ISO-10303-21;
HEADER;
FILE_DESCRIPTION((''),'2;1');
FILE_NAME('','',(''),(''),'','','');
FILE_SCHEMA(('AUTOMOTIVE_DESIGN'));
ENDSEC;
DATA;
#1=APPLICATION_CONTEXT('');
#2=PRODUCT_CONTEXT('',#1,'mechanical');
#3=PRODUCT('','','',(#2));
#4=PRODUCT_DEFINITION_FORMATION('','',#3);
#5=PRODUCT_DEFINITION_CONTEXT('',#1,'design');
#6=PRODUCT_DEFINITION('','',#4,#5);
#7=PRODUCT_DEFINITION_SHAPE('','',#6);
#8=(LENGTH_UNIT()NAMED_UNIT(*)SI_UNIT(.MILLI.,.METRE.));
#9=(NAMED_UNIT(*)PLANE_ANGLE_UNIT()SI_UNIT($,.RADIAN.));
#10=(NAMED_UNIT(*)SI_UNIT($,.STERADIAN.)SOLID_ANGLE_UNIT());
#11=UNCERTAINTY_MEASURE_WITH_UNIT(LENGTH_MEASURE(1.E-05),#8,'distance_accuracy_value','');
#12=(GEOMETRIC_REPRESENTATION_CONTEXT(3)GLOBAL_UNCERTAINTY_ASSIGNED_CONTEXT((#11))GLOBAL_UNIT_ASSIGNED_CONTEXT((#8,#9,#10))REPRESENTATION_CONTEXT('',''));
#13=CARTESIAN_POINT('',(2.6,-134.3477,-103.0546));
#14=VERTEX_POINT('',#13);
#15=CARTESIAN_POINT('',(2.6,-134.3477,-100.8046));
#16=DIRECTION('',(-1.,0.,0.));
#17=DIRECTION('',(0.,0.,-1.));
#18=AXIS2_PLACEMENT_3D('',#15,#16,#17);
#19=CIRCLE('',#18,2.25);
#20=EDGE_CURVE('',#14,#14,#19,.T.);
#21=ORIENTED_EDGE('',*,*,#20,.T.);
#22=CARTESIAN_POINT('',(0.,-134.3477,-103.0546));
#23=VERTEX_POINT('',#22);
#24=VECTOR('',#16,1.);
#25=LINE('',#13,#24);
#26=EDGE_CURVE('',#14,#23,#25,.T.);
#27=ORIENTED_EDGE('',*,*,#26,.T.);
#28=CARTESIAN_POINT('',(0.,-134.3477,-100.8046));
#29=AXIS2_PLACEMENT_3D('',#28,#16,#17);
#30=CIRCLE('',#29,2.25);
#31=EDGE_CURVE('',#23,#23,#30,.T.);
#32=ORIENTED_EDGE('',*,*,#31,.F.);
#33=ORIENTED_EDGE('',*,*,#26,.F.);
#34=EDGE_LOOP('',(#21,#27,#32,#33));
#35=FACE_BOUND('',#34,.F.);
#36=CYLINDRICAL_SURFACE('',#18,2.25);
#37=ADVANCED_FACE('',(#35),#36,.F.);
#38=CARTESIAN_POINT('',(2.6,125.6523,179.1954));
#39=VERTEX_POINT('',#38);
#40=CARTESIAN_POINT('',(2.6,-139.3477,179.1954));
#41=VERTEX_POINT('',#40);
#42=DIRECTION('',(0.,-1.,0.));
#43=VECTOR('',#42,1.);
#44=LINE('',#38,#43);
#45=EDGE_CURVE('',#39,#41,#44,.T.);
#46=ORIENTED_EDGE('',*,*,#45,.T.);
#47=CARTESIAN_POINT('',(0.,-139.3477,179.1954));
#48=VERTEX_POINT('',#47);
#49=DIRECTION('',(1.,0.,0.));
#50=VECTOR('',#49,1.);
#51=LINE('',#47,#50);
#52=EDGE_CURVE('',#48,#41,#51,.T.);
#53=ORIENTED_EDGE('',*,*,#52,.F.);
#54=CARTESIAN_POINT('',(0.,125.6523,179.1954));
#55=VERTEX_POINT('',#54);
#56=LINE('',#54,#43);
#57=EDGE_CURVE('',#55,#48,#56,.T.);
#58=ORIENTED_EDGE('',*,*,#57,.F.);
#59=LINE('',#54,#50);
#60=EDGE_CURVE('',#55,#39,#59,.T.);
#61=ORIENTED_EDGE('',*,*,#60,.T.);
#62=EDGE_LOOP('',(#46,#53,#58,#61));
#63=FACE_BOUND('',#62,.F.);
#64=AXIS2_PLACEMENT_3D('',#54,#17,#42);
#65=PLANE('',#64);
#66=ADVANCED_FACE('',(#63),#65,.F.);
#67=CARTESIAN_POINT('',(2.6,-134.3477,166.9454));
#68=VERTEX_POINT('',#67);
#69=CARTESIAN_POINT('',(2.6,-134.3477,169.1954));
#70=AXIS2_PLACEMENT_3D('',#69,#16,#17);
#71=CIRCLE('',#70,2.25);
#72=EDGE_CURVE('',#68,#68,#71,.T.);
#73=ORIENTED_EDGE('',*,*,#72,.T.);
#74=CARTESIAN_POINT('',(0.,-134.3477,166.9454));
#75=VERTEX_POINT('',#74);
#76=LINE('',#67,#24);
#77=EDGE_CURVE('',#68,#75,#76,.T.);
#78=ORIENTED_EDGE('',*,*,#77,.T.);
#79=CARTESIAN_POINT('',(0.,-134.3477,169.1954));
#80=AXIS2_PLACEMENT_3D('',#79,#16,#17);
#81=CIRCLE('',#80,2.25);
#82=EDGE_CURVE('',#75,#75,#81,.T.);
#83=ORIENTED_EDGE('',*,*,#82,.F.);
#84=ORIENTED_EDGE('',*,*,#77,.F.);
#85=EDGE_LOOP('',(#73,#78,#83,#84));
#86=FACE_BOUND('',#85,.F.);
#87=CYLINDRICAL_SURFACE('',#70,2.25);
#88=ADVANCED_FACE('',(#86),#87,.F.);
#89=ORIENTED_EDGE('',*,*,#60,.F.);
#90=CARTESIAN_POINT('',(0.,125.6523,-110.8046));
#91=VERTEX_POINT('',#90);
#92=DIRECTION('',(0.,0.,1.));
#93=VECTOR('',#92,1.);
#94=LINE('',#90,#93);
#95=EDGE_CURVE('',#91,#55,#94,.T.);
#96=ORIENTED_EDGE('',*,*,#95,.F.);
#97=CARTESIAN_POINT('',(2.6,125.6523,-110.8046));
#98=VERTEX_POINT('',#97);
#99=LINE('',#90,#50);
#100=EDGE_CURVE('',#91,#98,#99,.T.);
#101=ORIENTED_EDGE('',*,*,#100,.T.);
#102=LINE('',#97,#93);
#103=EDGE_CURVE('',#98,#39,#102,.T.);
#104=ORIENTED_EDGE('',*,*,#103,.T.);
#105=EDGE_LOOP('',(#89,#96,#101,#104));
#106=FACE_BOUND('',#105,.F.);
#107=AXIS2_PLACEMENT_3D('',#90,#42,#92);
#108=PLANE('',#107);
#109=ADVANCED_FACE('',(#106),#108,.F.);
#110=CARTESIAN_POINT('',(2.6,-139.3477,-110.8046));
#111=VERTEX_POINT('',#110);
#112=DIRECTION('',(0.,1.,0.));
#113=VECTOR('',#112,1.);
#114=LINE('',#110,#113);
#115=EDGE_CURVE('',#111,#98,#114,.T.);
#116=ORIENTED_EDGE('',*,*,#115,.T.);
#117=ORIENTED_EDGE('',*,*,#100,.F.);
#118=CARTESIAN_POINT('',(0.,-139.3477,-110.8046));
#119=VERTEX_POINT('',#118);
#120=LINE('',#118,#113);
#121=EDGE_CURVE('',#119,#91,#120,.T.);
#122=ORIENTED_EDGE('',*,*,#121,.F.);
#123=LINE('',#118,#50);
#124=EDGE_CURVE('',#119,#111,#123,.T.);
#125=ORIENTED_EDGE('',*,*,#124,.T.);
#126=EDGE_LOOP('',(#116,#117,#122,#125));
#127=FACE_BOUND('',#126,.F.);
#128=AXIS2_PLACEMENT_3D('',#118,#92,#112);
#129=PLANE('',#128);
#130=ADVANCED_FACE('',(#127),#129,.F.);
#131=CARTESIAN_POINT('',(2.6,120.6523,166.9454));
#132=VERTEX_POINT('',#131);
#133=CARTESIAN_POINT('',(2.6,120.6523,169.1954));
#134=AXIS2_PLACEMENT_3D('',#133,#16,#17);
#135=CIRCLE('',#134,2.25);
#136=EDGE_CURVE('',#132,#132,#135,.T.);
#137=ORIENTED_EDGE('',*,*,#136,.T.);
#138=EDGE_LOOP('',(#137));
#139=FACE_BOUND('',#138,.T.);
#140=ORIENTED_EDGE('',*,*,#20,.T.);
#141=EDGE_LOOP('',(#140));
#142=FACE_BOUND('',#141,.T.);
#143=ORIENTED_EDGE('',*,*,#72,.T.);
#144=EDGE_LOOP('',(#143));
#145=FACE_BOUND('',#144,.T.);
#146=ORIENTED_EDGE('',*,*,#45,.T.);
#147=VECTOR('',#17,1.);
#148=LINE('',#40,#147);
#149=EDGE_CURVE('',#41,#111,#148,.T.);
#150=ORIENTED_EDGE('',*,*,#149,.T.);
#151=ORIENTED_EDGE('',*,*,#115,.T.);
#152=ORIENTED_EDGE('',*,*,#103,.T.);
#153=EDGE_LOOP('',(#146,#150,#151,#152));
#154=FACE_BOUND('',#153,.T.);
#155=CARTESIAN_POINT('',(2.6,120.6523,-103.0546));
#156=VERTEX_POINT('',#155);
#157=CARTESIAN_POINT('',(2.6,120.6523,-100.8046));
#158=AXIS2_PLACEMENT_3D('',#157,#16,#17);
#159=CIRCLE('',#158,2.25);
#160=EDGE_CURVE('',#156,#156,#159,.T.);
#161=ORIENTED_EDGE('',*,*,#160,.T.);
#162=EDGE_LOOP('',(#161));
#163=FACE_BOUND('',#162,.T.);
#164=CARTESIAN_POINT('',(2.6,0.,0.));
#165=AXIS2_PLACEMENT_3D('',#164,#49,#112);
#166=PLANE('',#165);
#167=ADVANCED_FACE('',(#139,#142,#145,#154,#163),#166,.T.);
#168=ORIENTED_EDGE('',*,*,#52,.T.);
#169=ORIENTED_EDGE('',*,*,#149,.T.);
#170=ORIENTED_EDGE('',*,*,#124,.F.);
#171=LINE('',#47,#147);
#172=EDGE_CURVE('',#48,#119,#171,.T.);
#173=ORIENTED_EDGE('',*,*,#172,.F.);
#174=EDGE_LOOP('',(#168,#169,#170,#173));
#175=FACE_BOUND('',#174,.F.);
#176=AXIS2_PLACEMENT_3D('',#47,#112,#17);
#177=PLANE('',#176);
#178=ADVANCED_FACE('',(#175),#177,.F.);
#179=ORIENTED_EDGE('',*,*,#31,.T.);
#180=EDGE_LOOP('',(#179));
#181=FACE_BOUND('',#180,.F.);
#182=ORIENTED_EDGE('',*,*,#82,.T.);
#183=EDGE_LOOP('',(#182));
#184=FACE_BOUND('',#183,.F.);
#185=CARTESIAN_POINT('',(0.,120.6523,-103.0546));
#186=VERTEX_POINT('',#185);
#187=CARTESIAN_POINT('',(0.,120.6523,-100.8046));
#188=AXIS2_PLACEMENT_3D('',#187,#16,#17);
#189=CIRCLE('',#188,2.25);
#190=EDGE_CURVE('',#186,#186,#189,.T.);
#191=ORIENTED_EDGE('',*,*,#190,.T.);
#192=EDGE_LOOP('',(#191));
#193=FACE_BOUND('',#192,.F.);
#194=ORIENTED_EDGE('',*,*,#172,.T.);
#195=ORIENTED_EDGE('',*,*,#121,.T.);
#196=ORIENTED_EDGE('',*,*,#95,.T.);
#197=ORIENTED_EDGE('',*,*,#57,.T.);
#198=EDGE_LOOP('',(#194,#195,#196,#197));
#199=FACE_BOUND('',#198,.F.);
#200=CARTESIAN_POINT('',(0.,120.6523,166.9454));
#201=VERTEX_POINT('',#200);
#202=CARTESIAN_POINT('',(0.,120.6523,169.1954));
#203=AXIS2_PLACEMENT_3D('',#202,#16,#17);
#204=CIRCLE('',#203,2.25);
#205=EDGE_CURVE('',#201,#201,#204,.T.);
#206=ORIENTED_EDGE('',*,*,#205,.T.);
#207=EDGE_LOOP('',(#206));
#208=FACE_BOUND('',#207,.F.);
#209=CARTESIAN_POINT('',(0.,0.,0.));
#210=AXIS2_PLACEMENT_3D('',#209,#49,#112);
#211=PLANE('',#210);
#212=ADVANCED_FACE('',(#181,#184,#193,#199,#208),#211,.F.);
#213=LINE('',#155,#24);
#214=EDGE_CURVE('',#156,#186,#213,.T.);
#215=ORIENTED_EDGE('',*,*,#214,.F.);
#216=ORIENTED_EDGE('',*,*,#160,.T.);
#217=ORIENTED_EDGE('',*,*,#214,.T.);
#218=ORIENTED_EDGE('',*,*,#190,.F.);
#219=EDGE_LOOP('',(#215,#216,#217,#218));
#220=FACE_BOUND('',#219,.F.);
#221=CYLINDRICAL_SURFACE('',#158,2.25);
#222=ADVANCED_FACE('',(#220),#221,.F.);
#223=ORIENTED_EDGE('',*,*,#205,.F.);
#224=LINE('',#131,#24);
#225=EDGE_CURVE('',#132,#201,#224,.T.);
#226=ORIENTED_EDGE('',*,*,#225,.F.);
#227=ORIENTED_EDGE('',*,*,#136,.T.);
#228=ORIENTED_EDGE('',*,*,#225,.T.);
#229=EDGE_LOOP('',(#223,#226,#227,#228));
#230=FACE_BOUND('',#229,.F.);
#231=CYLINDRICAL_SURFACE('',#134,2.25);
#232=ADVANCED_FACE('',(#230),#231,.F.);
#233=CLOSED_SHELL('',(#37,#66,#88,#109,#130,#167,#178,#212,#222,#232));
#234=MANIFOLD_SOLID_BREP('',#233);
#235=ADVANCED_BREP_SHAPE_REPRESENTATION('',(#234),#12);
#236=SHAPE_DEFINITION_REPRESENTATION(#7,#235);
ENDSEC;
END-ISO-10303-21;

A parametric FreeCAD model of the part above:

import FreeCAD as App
import Part
import Sketcher
from FreeCAD import Vector


def add_polygon(sketch, points):
    """Adds a closed chain of lines whose ends are joined by coincident constraints."""
    first, n = sketch.GeometryCount, len(points)
    for a, b in zip(points, points[1:] + points[:1]):
        sketch.addGeometry(Part.LineSegment(App.Vector(*a, 0), App.Vector(*b, 0)), False)
    for i in range(n):
        sketch.addConstraint(Sketcher.Constraint("Coincident", first + i, 2, first + (i + 1) % n, 1))

doc = App.newDocument("Part")
body = doc.addObject("PartDesign::Body", "Body")

sketch1 = doc.addObject("Sketcher::SketchObject", "Sketch")
body.addObject(sketch1)
sketch1.AttachmentSupport = (doc.YZ_Plane, [""])
sketch1.MapMode = "FlatFace"
add_polygon(sketch1, [(126, -111), (126, 179), (-139, 179), (-139, -111)])
sketch1.addConstraint([
    Sketcher.Constraint("Vertical", 0),
    Sketcher.Constraint("Horizontal", 1),
    Sketcher.Constraint("Vertical", 2),
    Sketcher.Constraint("Horizontal", 3),
    Sketcher.Constraint("DistanceX", 1, 2, 1, 1, 265.0),
    Sketcher.Constraint("DistanceY", 0, 1, 0, 2, 290.0),
    Sketcher.Constraint("DistanceX", -1, 1, 0, 2, 125.6523),
    Sketcher.Constraint("DistanceY", -1, 1, 0, 2, 179.1954),
])
pad1 = doc.addObject("PartDesign::Pad", "Pad")
body.addObject(pad1)
pad1.Profile = sketch1
pad1.Length = 2.6

sketch2 = doc.addObject("Sketcher::SketchObject", "Sketch001")
body.addObject(sketch2)
sketch2.AttachmentSupport = (doc.YZ_Plane, [""])
sketch2.MapMode = "FlatFace"
sketch2.AttachmentOffset = App.Placement(Vector(0, 0, 2.6), App.Rotation())
sketch2.addGeometry([
    Part.Circle(Vector(120.7, 169.2, 0), Vector(0, 0, 1), 2.2),
    Part.Circle(Vector(120.7, -100.8, 0), Vector(0, 0, 1), 2.2),
    Part.Circle(Vector(-134.3, 169.2, 0), Vector(0, 0, 1), 2.2),
    Part.Circle(Vector(-134.3, -100.8, 0), Vector(0, 0, 1), 2.2),
], False)
sketch2.addConstraint([
    Sketcher.Constraint("Equal", 0, 1),
    Sketcher.Constraint("Equal", 1, 2),
    Sketcher.Constraint("Equal", 2, 3),
    Sketcher.Constraint("Horizontal", 0, 3, 2, 3),
    Sketcher.Constraint("Horizontal", 1, 3, 3, 3),
    Sketcher.Constraint("Vertical", 0, 3, 1, 3),
    Sketcher.Constraint("Vertical", 2, 3, 3, 3),
    Sketcher.Constraint("Diameter", 0, 4.5),
    Sketcher.Constraint("DistanceY", 1, 3, 0, 3, 270.0),
    Sketcher.Constraint("DistanceX", 2, 3, 0, 3, 255.0),
    Sketcher.Constraint("DistanceX", -1, 1, 0, 3, 120.6523),
    Sketcher.Constraint("DistanceY", -1, 1, 0, 3, 169.1954),
])
doc.recompute()
hole = doc.addObject("PartDesign::Hole", "Hole")
body.addObject(hole)
hole.Profile = sketch2
hole.ThreadType = "None"
hole.Diameter = 4.5
hole.DepthType = "Dimension"
hole.Depth = 10
hole.DrillPoint = "Angled"
hole.DrillPointAngle = 118

doc.recompute()
